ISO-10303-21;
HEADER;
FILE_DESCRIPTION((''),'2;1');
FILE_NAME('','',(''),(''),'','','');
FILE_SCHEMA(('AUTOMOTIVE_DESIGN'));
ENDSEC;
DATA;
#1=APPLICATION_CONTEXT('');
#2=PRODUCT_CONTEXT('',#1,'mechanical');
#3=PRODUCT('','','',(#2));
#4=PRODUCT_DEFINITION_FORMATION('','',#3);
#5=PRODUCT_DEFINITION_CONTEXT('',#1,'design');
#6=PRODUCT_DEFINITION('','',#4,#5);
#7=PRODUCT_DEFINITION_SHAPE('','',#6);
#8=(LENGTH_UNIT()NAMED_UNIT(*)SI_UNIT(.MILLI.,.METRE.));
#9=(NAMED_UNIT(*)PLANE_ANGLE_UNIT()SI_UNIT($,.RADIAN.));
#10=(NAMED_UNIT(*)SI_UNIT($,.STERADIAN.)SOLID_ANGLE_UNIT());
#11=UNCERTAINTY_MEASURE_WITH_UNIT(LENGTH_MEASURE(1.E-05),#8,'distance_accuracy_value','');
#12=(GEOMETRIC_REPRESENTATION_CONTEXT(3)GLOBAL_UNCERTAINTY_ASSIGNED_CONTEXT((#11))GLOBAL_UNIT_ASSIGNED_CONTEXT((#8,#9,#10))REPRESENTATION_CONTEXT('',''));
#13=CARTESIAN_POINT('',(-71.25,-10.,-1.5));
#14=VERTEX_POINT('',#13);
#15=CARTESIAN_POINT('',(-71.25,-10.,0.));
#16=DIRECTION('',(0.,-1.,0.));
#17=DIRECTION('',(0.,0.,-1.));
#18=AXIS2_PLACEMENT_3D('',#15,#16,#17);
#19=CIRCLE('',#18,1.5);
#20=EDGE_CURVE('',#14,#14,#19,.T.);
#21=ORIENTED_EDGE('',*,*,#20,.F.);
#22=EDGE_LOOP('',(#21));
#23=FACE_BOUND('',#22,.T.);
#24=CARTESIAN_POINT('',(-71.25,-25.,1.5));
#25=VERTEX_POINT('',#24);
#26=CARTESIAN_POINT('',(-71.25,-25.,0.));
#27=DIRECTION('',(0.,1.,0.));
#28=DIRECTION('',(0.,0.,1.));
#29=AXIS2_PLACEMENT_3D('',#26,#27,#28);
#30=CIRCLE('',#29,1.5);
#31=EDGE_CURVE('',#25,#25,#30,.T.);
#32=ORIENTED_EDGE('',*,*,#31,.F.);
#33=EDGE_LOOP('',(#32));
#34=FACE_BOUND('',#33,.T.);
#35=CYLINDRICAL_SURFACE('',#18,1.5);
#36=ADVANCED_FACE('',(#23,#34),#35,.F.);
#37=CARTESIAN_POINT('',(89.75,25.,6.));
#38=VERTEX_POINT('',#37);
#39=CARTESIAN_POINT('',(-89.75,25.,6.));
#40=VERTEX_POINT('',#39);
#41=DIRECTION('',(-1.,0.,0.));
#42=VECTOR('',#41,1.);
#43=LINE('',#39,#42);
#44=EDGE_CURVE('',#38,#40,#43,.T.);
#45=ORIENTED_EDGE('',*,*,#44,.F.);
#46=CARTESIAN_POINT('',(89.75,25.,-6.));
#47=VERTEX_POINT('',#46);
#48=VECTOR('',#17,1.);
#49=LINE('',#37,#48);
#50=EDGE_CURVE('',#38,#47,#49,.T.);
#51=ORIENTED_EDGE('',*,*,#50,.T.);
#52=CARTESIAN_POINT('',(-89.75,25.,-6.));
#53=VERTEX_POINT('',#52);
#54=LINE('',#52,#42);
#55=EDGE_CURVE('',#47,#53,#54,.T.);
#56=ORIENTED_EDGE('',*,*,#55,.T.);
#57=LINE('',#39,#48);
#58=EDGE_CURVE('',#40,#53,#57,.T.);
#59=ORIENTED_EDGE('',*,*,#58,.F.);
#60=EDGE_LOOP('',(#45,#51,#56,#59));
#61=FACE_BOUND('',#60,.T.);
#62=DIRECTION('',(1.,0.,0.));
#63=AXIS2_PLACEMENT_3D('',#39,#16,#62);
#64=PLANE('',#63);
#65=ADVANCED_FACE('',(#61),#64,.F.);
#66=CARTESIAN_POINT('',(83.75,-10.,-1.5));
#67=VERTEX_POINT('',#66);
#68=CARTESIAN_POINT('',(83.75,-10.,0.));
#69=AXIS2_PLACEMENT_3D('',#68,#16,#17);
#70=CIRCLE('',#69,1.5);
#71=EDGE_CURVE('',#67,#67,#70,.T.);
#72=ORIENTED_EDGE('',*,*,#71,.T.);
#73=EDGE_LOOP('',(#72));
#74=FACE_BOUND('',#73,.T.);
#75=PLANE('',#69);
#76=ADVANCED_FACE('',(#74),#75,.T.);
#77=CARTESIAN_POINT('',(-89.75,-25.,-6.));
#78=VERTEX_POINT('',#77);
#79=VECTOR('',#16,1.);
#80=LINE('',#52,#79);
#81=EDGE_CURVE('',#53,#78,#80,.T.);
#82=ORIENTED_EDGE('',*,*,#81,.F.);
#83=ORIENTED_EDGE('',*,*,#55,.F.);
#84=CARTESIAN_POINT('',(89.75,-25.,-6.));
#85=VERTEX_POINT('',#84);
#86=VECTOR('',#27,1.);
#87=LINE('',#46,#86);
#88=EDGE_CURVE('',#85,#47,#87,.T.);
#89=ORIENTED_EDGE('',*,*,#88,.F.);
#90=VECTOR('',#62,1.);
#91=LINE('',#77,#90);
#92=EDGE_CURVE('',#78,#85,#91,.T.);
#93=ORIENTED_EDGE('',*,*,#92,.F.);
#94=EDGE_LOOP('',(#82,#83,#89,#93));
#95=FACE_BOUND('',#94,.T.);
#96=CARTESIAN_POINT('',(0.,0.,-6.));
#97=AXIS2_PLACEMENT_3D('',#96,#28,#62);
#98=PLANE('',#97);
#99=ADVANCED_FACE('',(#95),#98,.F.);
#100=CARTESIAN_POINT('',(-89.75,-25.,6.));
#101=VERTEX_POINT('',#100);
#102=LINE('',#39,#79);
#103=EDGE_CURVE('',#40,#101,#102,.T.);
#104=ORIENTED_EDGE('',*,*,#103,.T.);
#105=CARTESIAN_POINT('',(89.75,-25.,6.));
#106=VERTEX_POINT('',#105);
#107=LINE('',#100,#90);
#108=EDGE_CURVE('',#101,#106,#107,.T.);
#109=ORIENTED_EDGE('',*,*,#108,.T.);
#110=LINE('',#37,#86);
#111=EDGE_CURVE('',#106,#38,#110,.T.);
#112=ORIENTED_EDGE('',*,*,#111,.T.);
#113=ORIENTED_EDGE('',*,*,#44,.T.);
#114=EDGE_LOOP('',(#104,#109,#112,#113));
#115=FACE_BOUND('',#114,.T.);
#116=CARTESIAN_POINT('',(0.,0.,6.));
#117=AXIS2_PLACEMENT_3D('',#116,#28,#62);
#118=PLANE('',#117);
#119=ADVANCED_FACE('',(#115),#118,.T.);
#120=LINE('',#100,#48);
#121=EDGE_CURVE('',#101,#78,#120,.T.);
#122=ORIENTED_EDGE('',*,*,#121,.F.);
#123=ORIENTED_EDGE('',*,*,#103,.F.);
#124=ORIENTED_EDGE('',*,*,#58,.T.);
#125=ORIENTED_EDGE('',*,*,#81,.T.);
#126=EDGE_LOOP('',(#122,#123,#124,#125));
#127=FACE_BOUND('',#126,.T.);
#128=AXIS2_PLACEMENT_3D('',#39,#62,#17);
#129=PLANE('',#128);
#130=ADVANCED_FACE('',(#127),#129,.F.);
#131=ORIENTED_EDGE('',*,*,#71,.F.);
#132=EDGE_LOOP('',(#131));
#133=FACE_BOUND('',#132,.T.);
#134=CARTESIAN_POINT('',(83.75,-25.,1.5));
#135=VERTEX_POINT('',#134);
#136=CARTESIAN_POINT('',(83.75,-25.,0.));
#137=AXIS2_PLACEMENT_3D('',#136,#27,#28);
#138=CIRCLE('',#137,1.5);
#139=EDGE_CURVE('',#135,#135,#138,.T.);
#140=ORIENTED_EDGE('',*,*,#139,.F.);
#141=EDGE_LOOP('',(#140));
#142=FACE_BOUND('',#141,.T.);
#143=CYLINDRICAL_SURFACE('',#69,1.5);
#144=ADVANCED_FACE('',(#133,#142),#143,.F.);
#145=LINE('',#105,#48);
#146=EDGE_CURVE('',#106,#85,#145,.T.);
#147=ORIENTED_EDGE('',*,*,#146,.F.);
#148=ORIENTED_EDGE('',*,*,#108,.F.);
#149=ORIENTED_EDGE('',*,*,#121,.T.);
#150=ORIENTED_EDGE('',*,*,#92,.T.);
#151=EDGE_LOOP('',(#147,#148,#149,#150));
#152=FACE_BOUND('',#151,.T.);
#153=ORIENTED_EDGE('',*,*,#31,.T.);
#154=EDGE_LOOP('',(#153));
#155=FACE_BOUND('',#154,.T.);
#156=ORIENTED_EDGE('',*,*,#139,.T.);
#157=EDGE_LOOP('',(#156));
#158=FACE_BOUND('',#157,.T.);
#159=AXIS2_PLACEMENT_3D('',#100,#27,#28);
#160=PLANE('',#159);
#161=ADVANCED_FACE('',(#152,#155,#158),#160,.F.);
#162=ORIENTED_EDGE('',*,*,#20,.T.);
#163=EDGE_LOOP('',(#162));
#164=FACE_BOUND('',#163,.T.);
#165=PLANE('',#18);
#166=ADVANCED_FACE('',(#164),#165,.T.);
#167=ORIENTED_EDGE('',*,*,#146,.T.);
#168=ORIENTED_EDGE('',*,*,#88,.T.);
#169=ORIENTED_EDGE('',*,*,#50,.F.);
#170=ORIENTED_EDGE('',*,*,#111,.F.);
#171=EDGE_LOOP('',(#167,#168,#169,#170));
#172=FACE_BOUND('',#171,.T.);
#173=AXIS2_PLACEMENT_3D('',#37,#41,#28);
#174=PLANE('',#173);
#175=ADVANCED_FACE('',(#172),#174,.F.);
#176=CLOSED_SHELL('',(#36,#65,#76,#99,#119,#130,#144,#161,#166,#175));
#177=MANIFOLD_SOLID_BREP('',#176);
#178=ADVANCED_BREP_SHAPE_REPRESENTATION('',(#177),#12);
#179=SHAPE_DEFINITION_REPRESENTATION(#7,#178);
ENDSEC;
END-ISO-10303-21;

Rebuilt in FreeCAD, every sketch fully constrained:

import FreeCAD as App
import Part
import Sketcher

V = App.Vector
Q = App.Units.Quantity

doc = App.newDocument("Part")
body = doc.addObject("PartDesign::Body", "Body")

# Sketch on XY plane
sketch1 = doc.addObject("Sketcher::SketchObject", "Sketch")
body.addObject(sketch1)
sketch1.AttachmentSupport = (doc.XY_Plane, [""])
sketch1.MapMode = "FlatFace"
sketch1.addGeometry(Part.LineSegment(V(-89.75, 25, 0), V(-89.75, -25, 0)), False)
sketch1.addGeometry(Part.LineSegment(V(-89.75, -25, 0), V(89.75, -25, 0)), False)
sketch1.addGeometry(Part.LineSegment(V(89.75, -25, 0), V(89.75, 25, 0)), False)
sketch1.addGeometry(Part.LineSegment(V(89.75, 25, 0), V(-89.75, 25, 0)), False)
sketch1.addConstraint(Sketcher.Constraint("Coincident", 0, 2, 1, 1))
sketch1.addConstraint(Sketcher.Constraint("Coincident", 1, 2, 2, 1))
sketch1.addConstraint(Sketcher.Constraint("Coincident", 2, 2, 3, 1))
sketch1.addConstraint(Sketcher.Constraint("Coincident", 3, 2, 0, 1))
sketch1.addConstraint(Sketcher.Constraint("Vertical", 0))
sketch1.addConstraint(Sketcher.Constraint("Horizontal", 1))
sketch1.addConstraint(Sketcher.Constraint("Vertical", 2))
sketch1.addConstraint(Sketcher.Constraint("Horizontal", 3))
sketch1.addConstraint(Sketcher.Constraint("Symmetric", 0, 2, 2, 2, -1, 1))
sketch1.addConstraint(Sketcher.Constraint("DistanceY", 0, 2, 0, 1, Q("50 mm")))
sketch1.addConstraint(Sketcher.Constraint("DistanceX", 1, 1, 1, 2, Q("179.5 mm")))
pad1 = doc.addObject("PartDesign::Pad", "Pad")
body.addObject(pad1)
pad1.Profile = sketch1
pad1.Length = 12
pad1.Midplane = True

# Sketch on XZ plane
sketch2 = doc.addObject("Sketcher::SketchObject", "Sketch001")
body.addObject(sketch2)
sketch2.AttachmentSupport = (doc.XZ_Plane, [""])
sketch2.MapMode = "FlatFace"
sketch2.AttachmentOffset = App.Placement(V(0, 0, 25), App.Rotation())
sketch2.addGeometry(Part.Circle(V(-71.25, 0, 0), V(0, 0, 1), 1.5), False)
sketch2.addGeometry(Part.Circle(V(83.75, 0, 0), V(0, 0, 1), 1.5), False)
sketch2.addConstraint(Sketcher.Constraint("Equal", 0, 1))
sketch2.addConstraint(Sketcher.Constraint("PointOnObject", 0, 3, -1))
sketch2.addConstraint(Sketcher.Constraint("PointOnObject", 1, 3, -1))
sketch2.addConstraint(Sketcher.Constraint("Diameter", 0, Q("3 mm")))
sketch2.addConstraint(Sketcher.Constraint("DistanceX", 0, 3, 1, 3, Q("155 mm")))
sketch2.addConstraint(Sketcher.Constraint("DistanceX", 0, 3, -1, 1, Q("71.25 mm")))
pocket1 = doc.addObject("PartDesign::Pocket", "Pocket")
body.addObject(pocket1)
pocket1.Profile = sketch2
pocket1.Length = 30
pocket1.Midplane = True

doc.recompute()
